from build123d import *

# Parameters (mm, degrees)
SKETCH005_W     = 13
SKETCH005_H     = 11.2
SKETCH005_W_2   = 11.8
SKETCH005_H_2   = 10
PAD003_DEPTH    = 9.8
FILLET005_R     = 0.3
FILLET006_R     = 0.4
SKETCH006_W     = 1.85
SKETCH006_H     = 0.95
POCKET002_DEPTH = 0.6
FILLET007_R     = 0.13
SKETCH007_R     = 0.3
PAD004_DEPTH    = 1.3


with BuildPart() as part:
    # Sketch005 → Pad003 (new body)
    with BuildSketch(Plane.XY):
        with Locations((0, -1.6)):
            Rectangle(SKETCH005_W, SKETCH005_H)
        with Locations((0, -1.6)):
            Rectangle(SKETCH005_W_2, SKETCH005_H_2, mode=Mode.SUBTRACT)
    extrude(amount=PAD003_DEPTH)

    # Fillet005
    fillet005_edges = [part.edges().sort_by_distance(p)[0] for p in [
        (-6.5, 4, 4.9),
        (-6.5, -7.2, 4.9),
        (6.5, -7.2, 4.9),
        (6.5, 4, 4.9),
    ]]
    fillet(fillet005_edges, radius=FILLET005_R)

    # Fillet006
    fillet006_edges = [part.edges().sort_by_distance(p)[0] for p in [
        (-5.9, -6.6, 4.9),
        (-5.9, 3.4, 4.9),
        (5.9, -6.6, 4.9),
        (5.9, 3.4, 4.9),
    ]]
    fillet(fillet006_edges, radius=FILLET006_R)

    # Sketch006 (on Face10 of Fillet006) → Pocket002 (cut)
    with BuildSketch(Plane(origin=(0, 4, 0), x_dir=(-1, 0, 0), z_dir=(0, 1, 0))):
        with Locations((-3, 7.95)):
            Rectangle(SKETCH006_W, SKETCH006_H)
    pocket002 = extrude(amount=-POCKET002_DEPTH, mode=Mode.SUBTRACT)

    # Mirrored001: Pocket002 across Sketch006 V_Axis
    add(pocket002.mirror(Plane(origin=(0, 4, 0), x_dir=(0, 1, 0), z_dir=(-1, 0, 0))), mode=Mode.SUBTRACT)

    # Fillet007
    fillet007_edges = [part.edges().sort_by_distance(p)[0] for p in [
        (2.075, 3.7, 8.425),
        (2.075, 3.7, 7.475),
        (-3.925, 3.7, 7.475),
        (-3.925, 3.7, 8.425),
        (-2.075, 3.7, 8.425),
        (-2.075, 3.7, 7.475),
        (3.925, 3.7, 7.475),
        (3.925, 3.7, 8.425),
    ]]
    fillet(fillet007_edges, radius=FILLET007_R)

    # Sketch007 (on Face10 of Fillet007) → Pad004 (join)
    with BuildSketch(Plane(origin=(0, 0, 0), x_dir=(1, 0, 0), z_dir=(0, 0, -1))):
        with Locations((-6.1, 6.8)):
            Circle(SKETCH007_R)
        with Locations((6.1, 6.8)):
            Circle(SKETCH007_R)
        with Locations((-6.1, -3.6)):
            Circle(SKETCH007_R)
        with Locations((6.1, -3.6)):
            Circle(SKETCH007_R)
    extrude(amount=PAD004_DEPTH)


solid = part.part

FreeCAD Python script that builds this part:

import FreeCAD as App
import Part
import Sketcher

V = App.Vector
Q = App.Units.Quantity


def edges_at(feature, points):
    """Names of the edges that pass closest to the given points."""
    edges = feature.Shape.Edges
    near = lambda p: min(range(len(edges)), key=lambda i: edges[i].distToShape(Part.Vertex(*p))[0])
    return sorted({f"Edge{near(p) + 1}" for p in points})


def add_polygon(sketch, points):
    """Adds a closed chain of lines whose ends are joined by coincident constraints."""
    first, n = sketch.GeometryCount, len(points)
    for a, b in zip(points, points[1:] + points[:1]):
        sketch.addGeometry(Part.LineSegment(App.Vector(*a, 0), App.Vector(*b, 0)), False)
    for i in range(n):
        sketch.addConstraint(Sketcher.Constraint("Coincident", first + i, 2, first + (i + 1) % n, 1))

doc = App.newDocument("Part")
params = doc.addObject("Spreadsheet::Sheet", "Params")
for row, (alias, value) in enumerate([
    ("sketch1_width", "13 mm"),
    ("sketch1_height", "10 mm"),
    ("sketch1_width2", "11.8 mm"),
    ("sketch1_height2", "11.2 mm"),
    ("pad1_length", "9.8 mm"),
    ("fillet_radius", "0.3 mm"),
    ("fillet2_radius", "0.4 mm"),
    ("sketch2_width", "1.85 mm"),
    ("sketch2_height", "0.95 mm"),
    ("pocket1_length", "0.6 mm"),
    ("fillet3_radius", "0.13 mm"),
    ("sketch3_diameter", "0.6 mm"),
    ("pad2_length", "1.3 mm"),
], start=1):
    params.set(f"A{row}", alias)
    params.set(f"B{row}", "=" + value)
    params.setAlias(f"B{row}", alias)

body = doc.addObject("PartDesign::Body", "Body")

sketch1 = body.newObject("Sketcher::SketchObject", "Sketch")
sketch1.AttachmentSupport = (doc.getObject("XY_Plane"), [""])
sketch1.MapMode = "FlatFace"
add_polygon(sketch1, [(-6, 4), (-6, -7), (6, -7), (6, 4)])
add_polygon(sketch1, [(6, -7), (-6, -7), (-6, 3), (6, 3)])
sketch1.addConstraint(Sketcher.Constraint("Vertical", 0))
sketch1.addConstraint(Sketcher.Constraint("Horizontal", 1))
sketch1.addConstraint(Sketcher.Constraint("Vertical", 2))
sketch1.addConstraint(Sketcher.Constraint("Horizontal", 3))
sketch1.addConstraint(Sketcher.Constraint("Horizontal", 4))
sketch1.addConstraint(Sketcher.Constraint("Vertical", 5))
sketch1.addConstraint(Sketcher.Constraint("Horizontal", 6))
sketch1.addConstraint(Sketcher.Constraint("Vertical", 7))
sketch1.addConstraint(Sketcher.Constraint("DistanceX", 1, 1, 1, 2, Q("13 mm")))
sketch1.addConstraint(Sketcher.Constraint("DistanceY", 5, 1, 5, 2, Q("10 mm")))
sketch1.addConstraint(Sketcher.Constraint("DistanceX", 4, 2, 4, 1, Q("11.8 mm")))
sketch1.addConstraint(Sketcher.Constraint("DistanceY", 0, 2, 0, 1, Q("11.2 mm")))
sketch1.addConstraint(Sketcher.Constraint("DistanceY", -1, 1, 2, 2, Q("4 mm")))
sketch1.addConstraint(Sketcher.Constraint("DistanceX", 0, 2, -1, 1, Q("6.5 mm")))
sketch1.addConstraint(Sketcher.Constraint("DistanceX", 4, 2, -1, 1, Q("5.9 mm")))
sketch1.addConstraint(Sketcher.Constraint("DistanceY", 4, 2, -1, 1, Q("6.6 mm")))
sketch1.setExpression("Constraints[16]", "Params.sketch1_width")
sketch1.setExpression("Constraints[17]", "Params.sketch1_height")
sketch1.setExpression("Constraints[18]", "Params.sketch1_width2")
sketch1.setExpression("Constraints[19]", "Params.sketch1_height2")
pad1 = body.newObject("PartDesign::Pad", "Pad")
pad1.Profile = sketch1
pad1.setExpression("Length", "Params.pad1_length")
doc.recompute()

fillet = body.newObject("PartDesign::Fillet", "Fillet")
fillet.Base = (pad1, edges_at(pad1, [
    (-6.5, 4, 4.9),
    (-6.5, -7.2, 4.9),
    (6.5, -7.2, 4.9),
    (6.5, 4, 4.9),
]))
fillet.setExpression("Radius", "Params.fillet_radius")
doc.recompute()

fillet2 = body.newObject("PartDesign::Fillet", "Fillet001")
fillet2.Base = (fillet, edges_at(fillet, [
    (-5.9, -6.6, 4.9),
    (-5.9, 3.4, 4.9),
    (5.9, -6.6, 4.9),
    (5.9, 3.4, 4.9),
]))
fillet2.setExpression("Radius", "Params.fillet2_radius")

sketch2 = body.newObject("Sketcher::SketchObject", "Sketch001")
sketch2.AttachmentSupport = (doc.getObject("XZ_Plane"), [""])
sketch2.MapMode = "FlatFace"
sketch2.AttachmentOffset = App.Placement(V(0, 0, -4), App.Rotation())
add_polygon(sketch2, [(3.9, 8.4), (3.9, 7.5), (2.1, 7.5), (2.1, 8.4)])
sketch2.addConstraint(Sketcher.Constraint("Vertical", 0))
sketch2.addConstraint(Sketcher.Constraint("Horizontal", 1))
sketch2.addConstraint(Sketcher.Constraint("Vertical", 2))
sketch2.addConstraint(Sketcher.Constraint("Horizontal", 3))
sketch2.addConstraint(Sketcher.Constraint("DistanceX", 1, 2, 1, 1, Q("1.85 mm")))
sketch2.addConstraint(Sketcher.Constraint("DistanceY", 0, 2, 0, 1, Q("0.95 mm")))
sketch2.addConstraint(Sketcher.Constraint("DistanceX", -1, 1, 0, 2, Q("3.925 mm")))
sketch2.addConstraint(Sketcher.Constraint("DistanceY", -1, 1, 0, 2, Q("7.475 mm")))
sketch2.setExpression("Constraints[8]", "Params.sketch2_width")
sketch2.setExpression("Constraints[9]", "Params.sketch2_height")
pocket1 = body.newObject("PartDesign::Pocket", "Pocket")
pocket1.Profile = sketch2
pocket1.setExpression("Length", "Params.pocket1_length")
pocket1.Reversed = True
doc.recompute()

mirrored = body.newObject("PartDesign::Mirrored", "Mirrored")
mirrored.Originals = [pocket1]
mirrored.MirrorPlane = (doc.getObject("YZ_Plane"), [""])
body.Tip = mirrored
doc.recompute()

fillet3 = body.newObject("PartDesign::Fillet", "Fillet002")
fillet3.Base = (mirrored, edges_at(mirrored, [
    (2.075, 3.7, 8.425),
    (2.075, 3.7, 7.475),
    (-3.925, 3.7, 7.475),
    (-3.925, 3.7, 8.425),
    (-2.075, 3.7, 8.425),
    (-2.075, 3.7, 7.475),
    (3.925, 3.7, 7.475),
    (3.925, 3.7, 8.425),
]))
fillet3.setExpression("Radius", "Params.fillet3_radius")

sketch3 = body.newObject("Sketcher::SketchObject", "Sketch002")
sketch3.AttachmentSupport = (doc.getObject("XY_Plane"), [""])
sketch3.MapMode = "FlatFace"
sketch3.addGeometry(Part.Circle(V(-6.1, -6.8, 0), V(0, 0, 1), 0.3), False)
sketch3.addGeometry(Part.Circle(V(6.1, -6.8, 0), V(0, 0, 1), 0.3), False)
sketch3.addGeometry(Part.Circle(V(-6.1, 3.6, 0), V(0, 0, 1), 0.3), False)
sketch3.addGeometry(Part.Circle(V(6.1, 3.6, 0), V(0, 0, 1), 0.3), False)
sketch3.addConstraint(Sketcher.Constraint("Equal", 0, 1))
sketch3.addConstraint(Sketcher.Constraint("Equal", 1, 2))
sketch3.addConstraint(Sketcher.Constraint("Equal", 2, 3))
sketch3.addConstraint(Sketcher.Constraint("Symmetric", 0, 3, 1, 3, -2))
sketch3.addConstraint(Sketcher.Constraint("Symmetric", 2, 3, 3, 3, -2))
sketch3.addConstraint(Sketcher.Constraint("Vertical", 0, 3, 2, 3))
sketch3.addConstraint(Sketcher.Constraint("Diameter", 0, Q("0.6 mm")))
sketch3.addConstraint(Sketcher.Constraint("DistanceX", 0, 3, -1, 1, Q("6.1 mm")))
sketch3.addConstraint(Sketcher.Constraint("DistanceY", 0, 3, -1, 1, Q("6.8 mm")))
sketch3.addConstraint(Sketcher.Constraint("DistanceY", -1, 1, 2, 3, Q("3.6 mm")))
sketch3.setExpression("Constraints[6]", "Params.sketch3_diameter")
pad2 = body.newObject("PartDesign::Pad", "Pad001")
pad2.Profile = sketch3
pad2.setExpression("Length", "Params.pad2_length")
pad2.Reversed = True

doc.recompute()
